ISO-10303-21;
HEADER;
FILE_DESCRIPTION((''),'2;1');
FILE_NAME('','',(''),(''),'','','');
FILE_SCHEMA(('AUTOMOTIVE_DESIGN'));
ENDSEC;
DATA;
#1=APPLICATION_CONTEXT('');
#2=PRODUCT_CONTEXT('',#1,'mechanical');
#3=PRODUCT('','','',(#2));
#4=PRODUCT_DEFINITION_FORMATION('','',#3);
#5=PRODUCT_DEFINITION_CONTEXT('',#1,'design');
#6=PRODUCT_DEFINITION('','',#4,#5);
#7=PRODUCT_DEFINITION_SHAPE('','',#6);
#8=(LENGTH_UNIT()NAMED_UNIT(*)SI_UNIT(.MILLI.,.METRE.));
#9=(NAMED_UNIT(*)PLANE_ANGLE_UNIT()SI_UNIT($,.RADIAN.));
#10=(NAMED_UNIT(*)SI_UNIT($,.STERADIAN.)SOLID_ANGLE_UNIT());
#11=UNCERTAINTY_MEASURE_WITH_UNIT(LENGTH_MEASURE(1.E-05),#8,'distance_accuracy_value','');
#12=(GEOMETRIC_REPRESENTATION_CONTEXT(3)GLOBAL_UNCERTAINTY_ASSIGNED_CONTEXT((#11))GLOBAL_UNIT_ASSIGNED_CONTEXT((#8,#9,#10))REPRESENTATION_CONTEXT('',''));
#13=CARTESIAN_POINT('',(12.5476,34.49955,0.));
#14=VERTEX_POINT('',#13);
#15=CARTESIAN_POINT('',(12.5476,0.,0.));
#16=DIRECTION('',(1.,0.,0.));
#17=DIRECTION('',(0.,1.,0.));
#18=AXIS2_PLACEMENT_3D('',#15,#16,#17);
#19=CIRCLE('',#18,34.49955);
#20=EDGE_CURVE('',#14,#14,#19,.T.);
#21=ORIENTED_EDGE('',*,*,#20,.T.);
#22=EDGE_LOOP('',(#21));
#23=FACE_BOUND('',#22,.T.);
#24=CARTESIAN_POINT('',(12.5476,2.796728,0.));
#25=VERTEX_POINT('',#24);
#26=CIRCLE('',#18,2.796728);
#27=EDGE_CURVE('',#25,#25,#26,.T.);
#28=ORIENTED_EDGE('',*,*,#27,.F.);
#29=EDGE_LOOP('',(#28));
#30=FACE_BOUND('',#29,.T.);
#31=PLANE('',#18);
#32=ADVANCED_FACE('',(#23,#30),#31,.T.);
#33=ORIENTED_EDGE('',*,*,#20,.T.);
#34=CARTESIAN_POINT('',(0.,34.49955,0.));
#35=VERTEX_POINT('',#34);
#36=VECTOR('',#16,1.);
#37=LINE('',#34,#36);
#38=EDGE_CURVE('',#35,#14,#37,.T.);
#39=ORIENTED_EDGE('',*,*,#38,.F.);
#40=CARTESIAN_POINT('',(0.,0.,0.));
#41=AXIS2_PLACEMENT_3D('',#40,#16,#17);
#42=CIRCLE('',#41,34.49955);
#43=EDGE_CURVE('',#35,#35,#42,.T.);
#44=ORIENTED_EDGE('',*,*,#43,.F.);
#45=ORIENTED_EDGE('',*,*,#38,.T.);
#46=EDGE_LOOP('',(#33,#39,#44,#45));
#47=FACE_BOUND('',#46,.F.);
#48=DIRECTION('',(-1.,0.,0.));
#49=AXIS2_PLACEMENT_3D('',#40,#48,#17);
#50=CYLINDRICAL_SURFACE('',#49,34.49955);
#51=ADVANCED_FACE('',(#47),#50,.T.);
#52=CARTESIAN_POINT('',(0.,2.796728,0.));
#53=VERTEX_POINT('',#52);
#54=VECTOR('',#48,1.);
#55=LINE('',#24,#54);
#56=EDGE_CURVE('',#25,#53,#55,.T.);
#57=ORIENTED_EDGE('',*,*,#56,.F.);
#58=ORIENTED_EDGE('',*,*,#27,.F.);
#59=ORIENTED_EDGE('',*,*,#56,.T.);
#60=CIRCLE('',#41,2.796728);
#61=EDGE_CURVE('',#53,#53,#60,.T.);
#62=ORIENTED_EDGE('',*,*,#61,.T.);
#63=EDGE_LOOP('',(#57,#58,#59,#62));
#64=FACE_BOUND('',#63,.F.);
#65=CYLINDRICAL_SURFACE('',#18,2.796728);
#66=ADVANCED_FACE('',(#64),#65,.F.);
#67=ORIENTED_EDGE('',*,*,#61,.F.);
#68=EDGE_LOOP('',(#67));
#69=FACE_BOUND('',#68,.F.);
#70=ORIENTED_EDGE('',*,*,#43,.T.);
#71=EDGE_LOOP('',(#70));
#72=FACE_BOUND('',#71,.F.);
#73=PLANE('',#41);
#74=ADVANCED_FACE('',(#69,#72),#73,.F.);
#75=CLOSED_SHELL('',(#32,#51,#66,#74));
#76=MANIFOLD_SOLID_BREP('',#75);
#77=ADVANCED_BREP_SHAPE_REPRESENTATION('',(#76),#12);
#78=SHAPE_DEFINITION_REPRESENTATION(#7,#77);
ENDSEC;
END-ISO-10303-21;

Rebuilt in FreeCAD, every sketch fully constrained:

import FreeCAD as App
import Part
import Sketcher
from FreeCAD import Vector
Q = App.Units.Quantity

doc = App.newDocument("Part")
params = doc.addObject("Spreadsheet::Sheet", "Params")
for row, (alias, value) in enumerate([
    ("pad1_length", "0.494 in"),
], start=1):
    params.set(f"A{row}", alias)
    params.set(f"B{row}", "=" + value)
    params.setAlias(f"B{row}", alias)

body = doc.addObject("PartDesign::Body", "Body")

sketch1 = body.newObject("Sketcher::SketchObject", "Sketch")
sketch1.AttachmentSupport = (doc.getObject("YZ_Plane"), [""])
sketch1.MapMode = "FlatFace"
sketch1.addGeometry(Part.Circle(Vector(0, 0, 0), Vector(0, 0, 1), 34.49955), False)
sketch1.addConstraint([
    Sketcher.Constraint("Coincident", 0, 3, -1, 1),
    Sketcher.Constraint("Diameter", 0, Q("2.7165 in")),
])
pad1 = body.newObject("PartDesign::Pad", "Pad")
pad1.Profile = sketch1
pad1.setExpression("Length", "Params.pad1_length")

sketch2 = body.newObject("Sketcher::SketchObject", "Sketch001")
sketch2.AttachmentSupport = (doc.getObject("YZ_Plane"), [""])
sketch2.MapMode = "FlatFace"
sketch2.AttachmentOffset = App.Placement(Vector(0, 0, 0.494 * 25.4), App.Rotation())
sketch2.addGeometry(Part.Circle(Vector(0, 0, 0), Vector(0, 0, 1), 2.796728), False)
sketch2.addConstraint([
    Sketcher.Constraint("Coincident", 0, 3, -1, 1),
    Sketcher.Constraint("Diameter", 0, Q("5.593456 mm")),
])
pocket1 = body.newObject("PartDesign::Pocket", "Pocket")
pocket1.Profile = sketch2
pocket1.Type = "ThroughAll"

doc.recompute()
